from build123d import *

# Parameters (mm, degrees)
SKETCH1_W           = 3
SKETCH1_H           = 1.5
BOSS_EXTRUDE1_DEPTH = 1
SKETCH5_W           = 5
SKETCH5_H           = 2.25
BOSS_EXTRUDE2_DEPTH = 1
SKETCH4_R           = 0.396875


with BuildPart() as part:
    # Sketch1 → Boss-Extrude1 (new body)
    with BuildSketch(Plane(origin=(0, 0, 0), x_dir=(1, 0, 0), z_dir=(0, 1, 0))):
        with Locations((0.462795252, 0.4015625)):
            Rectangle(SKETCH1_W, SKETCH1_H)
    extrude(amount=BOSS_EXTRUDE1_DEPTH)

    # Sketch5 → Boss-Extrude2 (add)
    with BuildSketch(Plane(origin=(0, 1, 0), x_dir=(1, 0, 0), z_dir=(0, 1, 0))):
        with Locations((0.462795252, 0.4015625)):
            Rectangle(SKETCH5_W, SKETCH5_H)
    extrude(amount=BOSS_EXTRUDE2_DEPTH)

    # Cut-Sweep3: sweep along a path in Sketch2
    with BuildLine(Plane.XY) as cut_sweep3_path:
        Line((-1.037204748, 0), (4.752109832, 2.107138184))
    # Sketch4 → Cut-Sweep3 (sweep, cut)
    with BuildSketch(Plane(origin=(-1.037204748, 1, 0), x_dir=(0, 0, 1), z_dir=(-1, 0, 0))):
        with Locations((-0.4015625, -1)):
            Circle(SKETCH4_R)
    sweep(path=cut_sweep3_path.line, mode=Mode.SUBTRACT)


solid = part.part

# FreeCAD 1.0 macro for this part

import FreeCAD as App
import Part
import Sketcher


def add_polygon(sketch, points):
    """Adds a closed chain of lines whose ends are joined by coincident constraints."""
    first, n = sketch.GeometryCount, len(points)
    for a, b in zip(points, points[1:] + points[:1]):
        sketch.addGeometry(Part.LineSegment(App.Vector(*a, 0), App.Vector(*b, 0)), False)
    for i in range(n):
        sketch.addConstraint(Sketcher.Constraint("Coincident", first + i, 2, first + (i + 1) % n, 1))

doc = App.newDocument("Part")
params = doc.addObject("Spreadsheet::Sheet", "Params")
for row, (alias, value) in enumerate([
    ("sketch1_width", "3 mm"),
    ("sketch1_height", "1.5 mm"),
    ("pad1_length", "1 mm"),
    ("sketch2_width", "5 mm"),
    ("sketch2_height", "2.25 mm"),
    ("pad2_length", "1 mm"),
], start=1):
    params.set(f"A{row}", alias)
    params.set(f"B{row}", "=" + value)
    params.setAlias(f"B{row}", alias)

body = doc.addObject("PartDesign::Body", "Body")

# Sketch on XZ plane
sketch1 = body.newObject("Sketcher::SketchObject", "Sketch")
sketch1.AttachmentSupport = (doc.getObject("XZ_Plane"), [""])
sketch1.MapMode = "FlatFace"
add_polygon(sketch1, [(-1, -1.2), (-1, 0.3), (2, 0.3), (2, -1.2)])  # lines 0-3
sketch1.addConstraint([
    Sketcher.Constraint("Vertical", 0),
    Sketcher.Constraint("Horizontal", 1),
    Sketcher.Constraint("Vertical", 2),
    Sketcher.Constraint("Horizontal", 3),
    Sketcher.Constraint("DistanceX", 1, 1, 1, 2, 3.0),
    Sketcher.Constraint("DistanceY", 0, 1, 0, 2, 1.5),
    Sketcher.Constraint("DistanceX", 0, 2, -1, 1, 1.037205),
    Sketcher.Constraint("DistanceY", -1, 1, 0, 2, 0.348438),
])
sketch1.setExpression("Constraints[8]", "Params.sketch1_width")
sketch1.setExpression("Constraints[9]", "Params.sketch1_height")
pad1 = body.newObject("PartDesign::Pad", "Pad")
pad1.Profile = sketch1
pad1.setExpression("Length", "Params.pad1_length")
pad1.Reversed = True

# Sketch on XZ plane
sketch2 = body.newObject("Sketcher::SketchObject", "Sketch001")
sketch2.AttachmentSupport = (doc.getObject("XZ_Plane"), [""])
sketch2.MapMode = "FlatFace"
sketch2.AttachmentOffset = App.Placement(App.Vector(0, 0, -1), App.Rotation())
add_polygon(sketch2, [(-2, -1.5), (-2, 0.7), (3, 0.7), (3, -1.5)])  # lines 0-3
sketch2.addConstraint([
    Sketcher.Constraint("Vertical", 0),
    Sketcher.Constraint("Horizontal", 1),
    Sketcher.Constraint("Vertical", 2),
    Sketcher.Constraint("Horizontal", 3),
    Sketcher.Constraint("DistanceX", 1, 1, 1, 2, 5.0),
    Sketcher.Constraint("DistanceY", 0, 1, 0, 2, 2.25),
    Sketcher.Constraint("DistanceX", 0, 2, -1, 1, 2.037205),
    Sketcher.Constraint("DistanceY", -1, 1, 0, 2, 0.723437),
])
sketch2.setExpression("Constraints[8]", "Params.sketch2_width")
sketch2.setExpression("Constraints[9]", "Params.sketch2_height")
pad2 = body.newObject("PartDesign::Pad", "Pad001")
pad2.Profile = sketch2
pad2.setExpression("Length", "Params.pad2_length")
pad2.Reversed = True

# Sketch on YZ plane
sketch3 = body.newObject("Sketcher::SketchObject", "Sketch002")
sketch3.AttachmentSupport = (doc.getObject("YZ_Plane"), [""])
sketch3.MapMode = "FlatFace"
sketch3.AttachmentOffset = App.Placement(App.Vector(0, 0, -1.037205), App.Rotation())
sketch3.addGeometry(Part.Circle(App.Vector(0, -0.4, 0), App.Vector(0, 0, 1), 0.4), False)
sketch3.addConstraint([
    Sketcher.Constraint("PointOnObject", 0, 3, -2),
    Sketcher.Constraint("Diameter", 0, 0.79375),
    Sketcher.Constraint("DistanceY", 0, 3, -1, 1, 0.401562),
])

# Sketch on an angled plane
sketch4 = body.newObject("Sketcher::SketchObject", "Sketch003")
sketch4.Placement = App.Placement(App.Vector(-0.12133, 0.333351, 0), App.Rotation(App.Vector(0.939692621, 0.342020143, 0), App.Vector(0, 0, 1), App.Vector(0.342020143, -0.939692621, 0), "ZXY"))
sketch4.addGeometry(Part.LineSegment(App.Vector(-1, 0, 0), App.Vector(5, 0, 0)), False)
sketch4.addConstraint([
    Sketcher.Constraint("Horizontal", 0),
    Sketcher.Constraint("PointOnObject", 0, 1, -1),
    Sketcher.Constraint("DistanceX", 0, 1, 0, 2, 6.16086),
    Sketcher.Constraint("DistanceX", 0, 1, -1, 1, 0.974654),
])
doc.recompute()

subtractivepipe = body.newObject("PartDesign::SubtractivePipe", "SubtractivePipe")
subtractivepipe.Profile = sketch3
subtractivepipe.Spine = (sketch4, ["Edge1"])

doc.recompute()
